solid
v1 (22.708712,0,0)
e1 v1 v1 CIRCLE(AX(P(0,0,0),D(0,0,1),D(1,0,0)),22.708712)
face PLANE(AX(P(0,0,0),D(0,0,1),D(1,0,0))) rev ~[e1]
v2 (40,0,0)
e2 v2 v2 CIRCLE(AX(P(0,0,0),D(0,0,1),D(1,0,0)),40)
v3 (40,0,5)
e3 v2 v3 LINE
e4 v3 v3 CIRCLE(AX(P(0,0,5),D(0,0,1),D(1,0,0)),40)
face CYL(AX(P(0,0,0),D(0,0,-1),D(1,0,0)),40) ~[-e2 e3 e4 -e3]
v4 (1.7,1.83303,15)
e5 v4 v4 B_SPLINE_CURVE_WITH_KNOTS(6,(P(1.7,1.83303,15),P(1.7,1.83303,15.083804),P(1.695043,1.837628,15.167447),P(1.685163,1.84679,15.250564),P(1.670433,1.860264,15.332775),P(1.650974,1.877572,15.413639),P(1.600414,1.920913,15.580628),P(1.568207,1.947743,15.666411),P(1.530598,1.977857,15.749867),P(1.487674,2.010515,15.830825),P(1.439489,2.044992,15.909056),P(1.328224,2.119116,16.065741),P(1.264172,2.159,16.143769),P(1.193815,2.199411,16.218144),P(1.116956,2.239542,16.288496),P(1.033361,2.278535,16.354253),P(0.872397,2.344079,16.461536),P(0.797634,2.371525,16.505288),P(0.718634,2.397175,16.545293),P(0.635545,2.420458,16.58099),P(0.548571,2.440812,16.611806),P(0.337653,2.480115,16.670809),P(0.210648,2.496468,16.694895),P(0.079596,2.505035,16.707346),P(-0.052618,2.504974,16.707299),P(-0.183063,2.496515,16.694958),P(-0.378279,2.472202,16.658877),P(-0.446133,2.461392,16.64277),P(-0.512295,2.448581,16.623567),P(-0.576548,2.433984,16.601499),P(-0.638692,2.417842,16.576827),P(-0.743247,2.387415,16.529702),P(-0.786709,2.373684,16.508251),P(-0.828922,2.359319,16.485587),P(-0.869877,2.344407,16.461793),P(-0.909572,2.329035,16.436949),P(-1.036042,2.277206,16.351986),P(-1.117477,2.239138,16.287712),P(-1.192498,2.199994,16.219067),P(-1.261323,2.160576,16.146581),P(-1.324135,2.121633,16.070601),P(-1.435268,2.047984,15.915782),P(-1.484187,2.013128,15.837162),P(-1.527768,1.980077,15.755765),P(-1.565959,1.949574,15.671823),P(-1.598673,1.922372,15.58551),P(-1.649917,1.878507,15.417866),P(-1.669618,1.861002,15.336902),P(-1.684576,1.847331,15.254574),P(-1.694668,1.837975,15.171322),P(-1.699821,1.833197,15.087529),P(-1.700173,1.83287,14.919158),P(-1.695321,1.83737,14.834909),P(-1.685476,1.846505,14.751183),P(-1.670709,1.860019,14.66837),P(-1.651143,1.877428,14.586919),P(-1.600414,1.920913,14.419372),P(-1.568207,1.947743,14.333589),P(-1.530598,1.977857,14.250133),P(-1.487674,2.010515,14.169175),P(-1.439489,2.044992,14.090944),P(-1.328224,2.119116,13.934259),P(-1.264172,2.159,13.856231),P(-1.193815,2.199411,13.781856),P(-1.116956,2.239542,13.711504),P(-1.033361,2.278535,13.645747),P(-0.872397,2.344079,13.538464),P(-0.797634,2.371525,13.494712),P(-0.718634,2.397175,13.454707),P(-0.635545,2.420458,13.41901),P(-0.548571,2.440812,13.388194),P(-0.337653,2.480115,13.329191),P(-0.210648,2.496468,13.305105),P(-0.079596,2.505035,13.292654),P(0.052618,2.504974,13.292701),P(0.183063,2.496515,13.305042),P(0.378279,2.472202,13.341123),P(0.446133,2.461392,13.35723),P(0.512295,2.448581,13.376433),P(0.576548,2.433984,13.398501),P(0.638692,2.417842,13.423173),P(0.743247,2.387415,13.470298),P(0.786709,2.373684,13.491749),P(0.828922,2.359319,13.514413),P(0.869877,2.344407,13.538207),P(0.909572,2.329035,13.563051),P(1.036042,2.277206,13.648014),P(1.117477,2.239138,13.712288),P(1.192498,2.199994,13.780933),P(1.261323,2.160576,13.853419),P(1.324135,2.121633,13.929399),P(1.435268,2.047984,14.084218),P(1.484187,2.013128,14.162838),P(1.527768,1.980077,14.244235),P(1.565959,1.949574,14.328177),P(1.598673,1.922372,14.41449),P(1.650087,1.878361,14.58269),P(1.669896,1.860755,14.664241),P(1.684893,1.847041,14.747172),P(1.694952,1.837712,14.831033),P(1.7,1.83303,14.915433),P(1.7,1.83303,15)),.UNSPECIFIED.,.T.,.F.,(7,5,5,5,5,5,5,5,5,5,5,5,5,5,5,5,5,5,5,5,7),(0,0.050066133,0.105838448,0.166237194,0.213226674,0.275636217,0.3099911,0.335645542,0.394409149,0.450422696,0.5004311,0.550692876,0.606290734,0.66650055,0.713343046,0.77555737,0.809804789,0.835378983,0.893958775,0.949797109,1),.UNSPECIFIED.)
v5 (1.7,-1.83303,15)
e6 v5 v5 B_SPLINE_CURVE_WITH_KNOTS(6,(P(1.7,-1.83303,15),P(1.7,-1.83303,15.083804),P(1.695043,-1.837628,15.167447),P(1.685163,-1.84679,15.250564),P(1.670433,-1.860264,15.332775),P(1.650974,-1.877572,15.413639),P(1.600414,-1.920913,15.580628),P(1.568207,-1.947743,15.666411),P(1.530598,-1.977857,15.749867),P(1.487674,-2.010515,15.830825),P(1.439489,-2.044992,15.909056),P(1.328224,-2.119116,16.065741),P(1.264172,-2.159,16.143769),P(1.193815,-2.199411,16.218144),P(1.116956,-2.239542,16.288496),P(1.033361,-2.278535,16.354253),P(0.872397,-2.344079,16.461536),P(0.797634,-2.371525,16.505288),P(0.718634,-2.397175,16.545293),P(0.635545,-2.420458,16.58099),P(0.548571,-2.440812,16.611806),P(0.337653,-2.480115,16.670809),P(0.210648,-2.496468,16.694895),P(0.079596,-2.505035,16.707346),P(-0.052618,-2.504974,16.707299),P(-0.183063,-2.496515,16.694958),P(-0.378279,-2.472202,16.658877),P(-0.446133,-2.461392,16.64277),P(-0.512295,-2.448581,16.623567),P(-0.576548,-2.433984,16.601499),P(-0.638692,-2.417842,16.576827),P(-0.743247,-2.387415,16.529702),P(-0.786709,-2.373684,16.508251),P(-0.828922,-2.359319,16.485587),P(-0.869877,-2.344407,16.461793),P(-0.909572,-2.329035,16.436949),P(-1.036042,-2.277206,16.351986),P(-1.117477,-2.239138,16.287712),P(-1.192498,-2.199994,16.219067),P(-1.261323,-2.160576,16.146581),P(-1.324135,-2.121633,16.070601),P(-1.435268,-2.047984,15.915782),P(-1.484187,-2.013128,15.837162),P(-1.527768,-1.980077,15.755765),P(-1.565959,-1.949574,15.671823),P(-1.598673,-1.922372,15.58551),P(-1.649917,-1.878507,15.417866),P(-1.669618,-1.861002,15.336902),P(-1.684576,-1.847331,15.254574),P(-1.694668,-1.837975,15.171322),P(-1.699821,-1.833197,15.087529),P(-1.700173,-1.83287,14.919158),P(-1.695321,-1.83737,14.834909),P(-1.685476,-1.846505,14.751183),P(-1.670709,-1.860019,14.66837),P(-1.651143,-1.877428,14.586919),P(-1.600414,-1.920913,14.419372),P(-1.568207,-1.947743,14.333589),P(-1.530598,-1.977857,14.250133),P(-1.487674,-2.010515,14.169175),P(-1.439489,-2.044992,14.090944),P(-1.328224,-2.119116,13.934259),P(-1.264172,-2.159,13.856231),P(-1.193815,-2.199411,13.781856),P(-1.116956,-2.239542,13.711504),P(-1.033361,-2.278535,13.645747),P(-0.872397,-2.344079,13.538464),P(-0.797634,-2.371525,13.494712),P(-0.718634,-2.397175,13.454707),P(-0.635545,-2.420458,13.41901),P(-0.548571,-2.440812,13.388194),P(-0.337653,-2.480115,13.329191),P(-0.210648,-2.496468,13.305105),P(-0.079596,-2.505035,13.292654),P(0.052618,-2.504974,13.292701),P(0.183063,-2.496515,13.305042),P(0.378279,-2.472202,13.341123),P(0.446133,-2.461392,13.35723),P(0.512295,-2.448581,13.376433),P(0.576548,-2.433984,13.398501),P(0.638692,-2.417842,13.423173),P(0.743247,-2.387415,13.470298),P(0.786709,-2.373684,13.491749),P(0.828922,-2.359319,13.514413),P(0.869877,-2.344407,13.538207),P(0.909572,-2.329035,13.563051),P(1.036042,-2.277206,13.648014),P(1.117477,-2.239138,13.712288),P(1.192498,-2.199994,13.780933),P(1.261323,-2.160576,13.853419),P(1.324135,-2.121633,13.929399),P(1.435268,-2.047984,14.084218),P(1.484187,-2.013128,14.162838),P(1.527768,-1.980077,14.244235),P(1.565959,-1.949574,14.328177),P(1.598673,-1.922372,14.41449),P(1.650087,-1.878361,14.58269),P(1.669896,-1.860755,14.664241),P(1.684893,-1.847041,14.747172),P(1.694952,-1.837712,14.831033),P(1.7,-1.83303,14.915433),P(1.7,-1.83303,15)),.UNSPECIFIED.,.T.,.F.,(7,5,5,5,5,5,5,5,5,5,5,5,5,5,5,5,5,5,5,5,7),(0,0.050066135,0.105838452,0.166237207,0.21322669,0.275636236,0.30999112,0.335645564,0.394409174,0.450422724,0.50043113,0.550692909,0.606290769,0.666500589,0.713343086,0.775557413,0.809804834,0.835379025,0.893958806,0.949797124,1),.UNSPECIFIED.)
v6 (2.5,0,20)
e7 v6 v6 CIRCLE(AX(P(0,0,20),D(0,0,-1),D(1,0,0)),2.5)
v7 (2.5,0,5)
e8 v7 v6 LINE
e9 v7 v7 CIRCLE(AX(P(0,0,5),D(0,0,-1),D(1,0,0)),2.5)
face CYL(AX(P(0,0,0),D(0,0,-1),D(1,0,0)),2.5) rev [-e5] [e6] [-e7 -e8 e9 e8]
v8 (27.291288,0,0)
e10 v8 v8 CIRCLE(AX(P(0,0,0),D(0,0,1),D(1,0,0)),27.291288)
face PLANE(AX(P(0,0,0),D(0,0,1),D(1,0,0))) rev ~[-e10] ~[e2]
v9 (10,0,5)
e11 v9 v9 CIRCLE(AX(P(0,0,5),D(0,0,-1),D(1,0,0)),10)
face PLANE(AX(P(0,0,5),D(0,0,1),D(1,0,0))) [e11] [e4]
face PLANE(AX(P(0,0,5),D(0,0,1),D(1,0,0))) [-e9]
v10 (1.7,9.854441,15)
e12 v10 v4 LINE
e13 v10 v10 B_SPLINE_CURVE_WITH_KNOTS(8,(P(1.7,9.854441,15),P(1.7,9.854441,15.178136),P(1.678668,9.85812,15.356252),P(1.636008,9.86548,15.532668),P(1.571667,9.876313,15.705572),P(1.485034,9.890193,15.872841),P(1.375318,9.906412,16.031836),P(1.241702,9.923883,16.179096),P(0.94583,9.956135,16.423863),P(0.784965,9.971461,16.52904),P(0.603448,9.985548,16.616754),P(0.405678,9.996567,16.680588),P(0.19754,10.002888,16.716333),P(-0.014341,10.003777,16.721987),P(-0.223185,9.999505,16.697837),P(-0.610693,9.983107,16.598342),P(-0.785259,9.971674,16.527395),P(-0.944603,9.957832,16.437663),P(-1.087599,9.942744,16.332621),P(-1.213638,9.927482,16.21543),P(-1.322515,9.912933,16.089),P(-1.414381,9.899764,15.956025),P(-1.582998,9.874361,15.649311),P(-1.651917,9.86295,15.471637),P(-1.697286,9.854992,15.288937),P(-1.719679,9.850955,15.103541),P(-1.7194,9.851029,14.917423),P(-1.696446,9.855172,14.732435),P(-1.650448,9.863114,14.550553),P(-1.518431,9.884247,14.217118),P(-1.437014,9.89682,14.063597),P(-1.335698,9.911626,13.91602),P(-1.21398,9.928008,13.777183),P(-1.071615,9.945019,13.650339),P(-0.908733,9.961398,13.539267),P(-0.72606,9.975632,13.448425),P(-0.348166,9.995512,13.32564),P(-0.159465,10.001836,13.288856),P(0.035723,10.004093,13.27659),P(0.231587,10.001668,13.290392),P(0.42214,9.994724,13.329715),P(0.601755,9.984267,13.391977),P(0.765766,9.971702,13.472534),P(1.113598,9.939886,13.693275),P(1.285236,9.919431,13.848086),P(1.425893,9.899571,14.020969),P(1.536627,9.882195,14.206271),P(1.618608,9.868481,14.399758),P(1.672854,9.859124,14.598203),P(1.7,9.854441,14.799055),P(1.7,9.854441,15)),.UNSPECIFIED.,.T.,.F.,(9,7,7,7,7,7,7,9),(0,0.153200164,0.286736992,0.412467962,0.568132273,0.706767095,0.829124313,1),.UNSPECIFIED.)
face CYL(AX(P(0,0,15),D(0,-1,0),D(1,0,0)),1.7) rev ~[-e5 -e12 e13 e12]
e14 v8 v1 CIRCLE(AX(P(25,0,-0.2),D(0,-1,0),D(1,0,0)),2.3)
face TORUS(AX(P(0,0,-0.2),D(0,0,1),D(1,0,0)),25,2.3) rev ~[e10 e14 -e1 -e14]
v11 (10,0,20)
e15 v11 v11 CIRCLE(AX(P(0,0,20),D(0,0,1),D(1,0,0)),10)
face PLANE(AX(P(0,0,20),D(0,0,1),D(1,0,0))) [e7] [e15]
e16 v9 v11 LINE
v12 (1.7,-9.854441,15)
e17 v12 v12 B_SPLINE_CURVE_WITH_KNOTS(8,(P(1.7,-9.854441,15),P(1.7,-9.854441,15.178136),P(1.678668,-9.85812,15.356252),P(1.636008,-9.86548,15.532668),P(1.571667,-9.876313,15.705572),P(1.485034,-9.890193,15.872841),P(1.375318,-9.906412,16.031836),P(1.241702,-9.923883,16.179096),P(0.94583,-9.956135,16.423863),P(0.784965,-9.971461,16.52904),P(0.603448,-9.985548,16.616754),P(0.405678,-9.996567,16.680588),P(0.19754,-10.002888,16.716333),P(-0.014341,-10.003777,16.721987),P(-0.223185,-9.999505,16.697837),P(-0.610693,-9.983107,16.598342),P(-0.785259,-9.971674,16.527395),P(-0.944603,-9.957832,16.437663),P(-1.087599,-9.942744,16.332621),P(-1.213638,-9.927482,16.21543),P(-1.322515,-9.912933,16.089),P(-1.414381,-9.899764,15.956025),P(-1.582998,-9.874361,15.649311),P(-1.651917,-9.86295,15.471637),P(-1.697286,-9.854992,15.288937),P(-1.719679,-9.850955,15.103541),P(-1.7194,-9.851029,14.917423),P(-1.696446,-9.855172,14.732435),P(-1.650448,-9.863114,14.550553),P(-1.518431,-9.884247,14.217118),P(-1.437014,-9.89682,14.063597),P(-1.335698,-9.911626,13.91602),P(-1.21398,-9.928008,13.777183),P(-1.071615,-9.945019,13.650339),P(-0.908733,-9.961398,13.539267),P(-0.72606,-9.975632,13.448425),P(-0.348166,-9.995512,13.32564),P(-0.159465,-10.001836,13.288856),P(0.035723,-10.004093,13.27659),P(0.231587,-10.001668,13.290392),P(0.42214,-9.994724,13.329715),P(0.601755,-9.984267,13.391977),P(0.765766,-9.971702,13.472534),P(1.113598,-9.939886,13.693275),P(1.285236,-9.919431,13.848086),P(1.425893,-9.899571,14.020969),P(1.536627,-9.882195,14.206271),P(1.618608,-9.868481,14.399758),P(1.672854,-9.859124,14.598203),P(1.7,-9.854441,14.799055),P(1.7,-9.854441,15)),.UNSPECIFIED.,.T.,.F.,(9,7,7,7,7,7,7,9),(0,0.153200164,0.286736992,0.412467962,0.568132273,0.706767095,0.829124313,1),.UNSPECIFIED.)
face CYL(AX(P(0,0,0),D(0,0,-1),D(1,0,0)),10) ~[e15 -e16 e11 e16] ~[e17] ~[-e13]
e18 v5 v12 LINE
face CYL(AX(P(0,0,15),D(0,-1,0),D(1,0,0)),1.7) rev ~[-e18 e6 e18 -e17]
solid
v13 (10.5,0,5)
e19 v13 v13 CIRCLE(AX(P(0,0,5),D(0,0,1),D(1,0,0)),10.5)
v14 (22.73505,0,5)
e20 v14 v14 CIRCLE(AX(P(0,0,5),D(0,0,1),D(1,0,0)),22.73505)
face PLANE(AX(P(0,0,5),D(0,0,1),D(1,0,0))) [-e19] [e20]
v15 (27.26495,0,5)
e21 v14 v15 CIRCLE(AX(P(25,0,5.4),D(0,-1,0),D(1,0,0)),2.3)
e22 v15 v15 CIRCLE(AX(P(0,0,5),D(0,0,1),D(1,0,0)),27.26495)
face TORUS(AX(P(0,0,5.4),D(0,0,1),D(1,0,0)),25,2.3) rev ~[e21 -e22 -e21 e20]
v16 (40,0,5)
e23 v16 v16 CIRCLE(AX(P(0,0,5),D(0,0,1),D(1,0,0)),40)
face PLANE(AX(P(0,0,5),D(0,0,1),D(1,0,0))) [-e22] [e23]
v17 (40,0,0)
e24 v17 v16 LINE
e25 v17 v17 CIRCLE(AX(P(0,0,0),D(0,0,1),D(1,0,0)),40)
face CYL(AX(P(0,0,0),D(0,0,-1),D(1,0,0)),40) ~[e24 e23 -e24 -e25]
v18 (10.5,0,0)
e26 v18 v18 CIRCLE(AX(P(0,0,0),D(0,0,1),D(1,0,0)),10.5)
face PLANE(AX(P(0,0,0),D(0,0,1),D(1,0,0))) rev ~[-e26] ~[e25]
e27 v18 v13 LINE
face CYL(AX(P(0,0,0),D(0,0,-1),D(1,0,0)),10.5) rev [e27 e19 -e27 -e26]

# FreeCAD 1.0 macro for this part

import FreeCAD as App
import Part
import Sketcher
from FreeCAD import Vector
Q = App.Units.Quantity

doc = App.newDocument("Part")
params = doc.addObject("Spreadsheet::Sheet", "Params")
for row, (alias, value) in enumerate([
    ("sketch1_diameter", "4.6 mm"),
    ("revolution_angle", "360 deg"),
    ("sketch2_diameter", "21 mm"),
    ("pad1_length", "5 mm"),
    ("sketch3_diameter", "80 mm"),
    ("pad2_length", "5 mm"),
    ("sketch4_diameter", "4.6 mm"),
    ("revolution2_angle", "360 deg"),
    ("sketch5_diameter", "80 mm"),
    ("pad3_length", "5 mm"),
    ("sketch6_diameter", "5 mm"),
    ("pad4_length", "30 mm"),
    ("sketch7_diameter", "3.4 mm"),
    ("pad5_length", "30 mm"),
    ("sketch8_diameter", "20 mm"),
    ("pad6_length", "20 mm"),
], start=1):
    params.set(f"A{row}", alias)
    params.set(f"B{row}", "=" + value)
    params.setAlias(f"B{row}", alias)

body = doc.addObject("PartDesign::Body", "Body")

# Sketch on XY plane
sketch1 = body.newObject("Sketcher::SketchObject", "Sketch")
sketch1.AttachmentSupport = (doc.getObject("XY_Plane"), [""])
sketch1.MapMode = "FlatFace"
sketch1.addGeometry(Part.Circle(Vector(25, 5.4, 0), Vector(0, 0, 1), 2.3), False)
sketch1.addConstraint([
    Sketcher.Constraint("Diameter", 0, Q("4.6 mm")),
    Sketcher.Constraint("DistanceX", -1, 1, 0, 3, Q("25 mm")),
    Sketcher.Constraint("DistanceY", -1, 1, 0, 3, Q("5.4 mm")),
])
sketch1.setExpression("Constraints[0]", "Params.sketch1_diameter")
revolution = body.newObject("PartDesign::Revolution", "Revolution")
revolution.Profile = sketch1
revolution.ReferenceAxis = (sketch1, ["V_Axis"])
revolution.setExpression("Angle", "Params.revolution_angle")
body2 = doc.addObject("PartDesign::Body", "Body001")
doc.recompute()

body.Placement = App.Placement(Vector(0, 0, 0), App.Rotation(Vector(1, 0, 0), 90))
boolean = body2.newObject("PartDesign::Boolean", "Boolean")
boolean.Type = "Fuse"
boolean.addObjects([body])
body3 = doc.addObject("PartDesign::Body", "Body002")

# Sketch on XY plane
sketch2 = body3.newObject("Sketcher::SketchObject", "Sketch001")
sketch2.AttachmentSupport = (doc.getObject("XY_Plane002"), [""])
sketch2.MapMode = "FlatFace"
sketch2.addGeometry(Part.Circle(Vector(0, 0, 0), Vector(0, 0, 1), 10.5), False)
sketch2.addConstraint([
    Sketcher.Constraint("Coincident", 0, 3, -1, 1),
    Sketcher.Constraint("Diameter", 0, Q("21 mm")),
])
sketch2.setExpression("Constraints[1]", "Params.sketch2_diameter")
pad1 = body3.newObject("PartDesign::Pad", "Pad")
pad1.Profile = sketch2
pad1.setExpression("Length", "Params.pad1_length")
body4 = doc.addObject("PartDesign::Body", "Body003")

# Sketch on XY plane
sketch3 = body4.newObject("Sketcher::SketchObject", "Sketch002")
sketch3.AttachmentSupport = (doc.getObject("XY_Plane003"), [""])
sketch3.MapMode = "FlatFace"
sketch3.addGeometry(Part.Circle(Vector(0, 0, 0), Vector(0, 0, 1), 40), False)
sketch3.addConstraint([
    Sketcher.Constraint("Coincident", 0, 3, -1, 1),
    Sketcher.Constraint("Diameter", 0, Q("80 mm")),
])
sketch3.setExpression("Constraints[1]", "Params.sketch3_diameter")
pad2 = body4.newObject("PartDesign::Pad", "Pad001")
pad2.Profile = sketch3
pad2.setExpression("Length", "Params.pad2_length")
doc.recompute()

boolean2 = body4.newObject("PartDesign::Boolean", "Boolean001")
boolean2.Type = "Cut"
boolean2.addObjects([body3])
doc.recompute()

boolean3 = body4.newObject("PartDesign::Boolean", "Boolean002")
boolean3.Type = "Cut"
boolean3.addObjects([body2])
body5 = doc.addObject("PartDesign::Body", "Body004")

# Sketch on XZ plane
sketch4 = body5.newObject("Sketcher::SketchObject", "Sketch003")
sketch4.AttachmentSupport = (doc.getObject("XZ_Plane004"), [""])
sketch4.MapMode = "FlatFace"
sketch4.addGeometry(Part.Circle(Vector(25, -0.2, 0), Vector(0, 0, 1), 2.3), False)
sketch4.addConstraint([
    Sketcher.Constraint("Diameter", 0, Q("4.6 mm")),
    Sketcher.Constraint("DistanceX", -1, 1, 0, 3, Q("25 mm")),
    Sketcher.Constraint("DistanceY", 0, 3, -1, 1, Q("0.2 mm")),
])
sketch4.setExpression("Constraints[0]", "Params.sketch4_diameter")
revolution2 = body5.newObject("PartDesign::Revolution", "Revolution001")
revolution2.Profile = sketch4
revolution2.ReferenceAxis = (sketch4, ["V_Axis"])
revolution2.setExpression("Angle", "Params.revolution2_angle")
body6 = doc.addObject("PartDesign::Body", "Body005")

# Sketch on XY plane
sketch5 = body6.newObject("Sketcher::SketchObject", "Sketch004")
sketch5.AttachmentSupport = (doc.getObject("XY_Plane005"), [""])
sketch5.MapMode = "FlatFace"
sketch5.addGeometry(Part.Circle(Vector(0, 0, 0), Vector(0, 0, 1), 40), False)
sketch5.addConstraint([
    Sketcher.Constraint("Coincident", 0, 3, -1, 1),
    Sketcher.Constraint("Diameter", 0, Q("80 mm")),
])
sketch5.setExpression("Constraints[1]", "Params.sketch5_diameter")
pad3 = body6.newObject("PartDesign::Pad", "Pad002")
pad3.Profile = sketch5
pad3.setExpression("Length", "Params.pad3_length")
doc.recompute()

boolean4 = body6.newObject("PartDesign::Boolean", "Boolean003")
boolean4.Type = "Cut"
boolean4.addObjects([body5])
body7 = doc.addObject("PartDesign::Body", "Body006")

# Sketch on XY plane
sketch6 = body7.newObject("Sketcher::SketchObject", "Sketch005")
sketch6.AttachmentSupport = (doc.getObject("XY_Plane006"), [""])
sketch6.MapMode = "FlatFace"
sketch6.addGeometry(Part.Circle(Vector(0, 0, 0), Vector(0, 0, 1), 2.5), False)
sketch6.addConstraint([
    Sketcher.Constraint("Coincident", 0, 3, -1, 1),
    Sketcher.Constraint("Diameter", 0, Q("5 mm")),
])
sketch6.setExpression("Constraints[1]", "Params.sketch6_diameter")
pad4 = body7.newObject("PartDesign::Pad", "Pad003")
pad4.Profile = sketch6
pad4.setExpression("Length", "Params.pad4_length")
body8 = doc.addObject("PartDesign::Body", "Body007")

# Sketch on XZ plane
sketch7 = body8.newObject("Sketcher::SketchObject", "Sketch006")
sketch7.AttachmentSupport = (doc.getObject("XZ_Plane007"), [""])
sketch7.MapMode = "FlatFace"
sketch7.addGeometry(Part.Circle(Vector(0, 15, 0), Vector(0, 0, 1), 1.7), False)
sketch7.addConstraint([
    Sketcher.Constraint("PointOnObject", 0, 3, -2),
    Sketcher.Constraint("Diameter", 0, Q("3.4 mm")),
    Sketcher.Constraint("DistanceY", -1, 1, 0, 3, Q("15 mm")),
])
sketch7.setExpression("Constraints[1]", "Params.sketch7_diameter")
pad5 = body8.newObject("PartDesign::Pad", "Pad004")
pad5.Profile = sketch7
pad5.setExpression("Length", "Params.pad5_length")
pad5.Midplane = True
body9 = doc.addObject("PartDesign::Body", "Body008")

# Sketch on XY plane
sketch8 = body9.newObject("Sketcher::SketchObject", "Sketch007")
sketch8.AttachmentSupport = (doc.getObject("XY_Plane008"), [""])
sketch8.MapMode = "FlatFace"
sketch8.addGeometry(Part.Circle(Vector(0, 0, 0), Vector(0, 0, 1), 10), False)
sketch8.addConstraint([
    Sketcher.Constraint("Coincident", 0, 3, -1, 1),
    Sketcher.Constraint("Diameter", 0, Q("20 mm")),
])
sketch8.setExpression("Constraints[1]", "Params.sketch8_diameter")
pad6 = body9.newObject("PartDesign::Pad", "Pad005")
pad6.Profile = sketch8
pad6.setExpression("Length", "Params.pad6_length")
doc.recompute()

boolean5 = body9.newObject("PartDesign::Boolean", "Boolean004")
boolean5.Type = "Cut"
boolean5.addObjects([body8])
doc.recompute()

boolean6 = body9.newObject("PartDesign::Boolean", "Boolean005")
boolean6.Type = "Cut"
boolean6.addObjects([body7])
doc.recompute()

boolean7 = body9.newObject("PartDesign::Boolean", "Boolean006")
boolean7.Type = "Fuse"
boolean7.addObjects([body6])

doc.recompute()
